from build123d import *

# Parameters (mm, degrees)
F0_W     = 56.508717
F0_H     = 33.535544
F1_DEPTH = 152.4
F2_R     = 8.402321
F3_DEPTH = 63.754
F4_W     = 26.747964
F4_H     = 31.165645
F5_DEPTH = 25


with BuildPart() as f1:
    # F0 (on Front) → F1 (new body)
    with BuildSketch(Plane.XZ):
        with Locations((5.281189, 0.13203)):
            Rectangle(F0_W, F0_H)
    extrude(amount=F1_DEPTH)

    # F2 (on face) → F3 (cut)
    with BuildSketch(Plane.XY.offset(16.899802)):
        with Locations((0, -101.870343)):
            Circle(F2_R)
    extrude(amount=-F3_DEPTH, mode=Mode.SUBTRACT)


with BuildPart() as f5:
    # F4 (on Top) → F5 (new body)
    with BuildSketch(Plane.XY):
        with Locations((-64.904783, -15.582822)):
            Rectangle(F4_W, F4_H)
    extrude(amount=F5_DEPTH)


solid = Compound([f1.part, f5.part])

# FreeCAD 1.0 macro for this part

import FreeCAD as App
import Part
import Sketcher

V = App.Vector
Q = App.Units.Quantity


def add_polygon(sketch, points):
    """Adds a closed chain of lines whose ends are joined by coincident constraints."""
    first, n = sketch.GeometryCount, len(points)
    for a, b in zip(points, points[1:] + points[:1]):
        sketch.addGeometry(Part.LineSegment(App.Vector(*a, 0), App.Vector(*b, 0)), False)
    for i in range(n):
        sketch.addConstraint(Sketcher.Constraint("Coincident", first + i, 2, first + (i + 1) % n, 1))

doc = App.newDocument("Part")
body = doc.addObject("PartDesign::Body", "Body")

# Sketch on XZ plane
sketch1 = body.newObject("Sketcher::SketchObject", "Sketch")
sketch1.AttachmentSupport = (doc.getObject("XZ_Plane"), [""])
sketch1.MapMode = "FlatFace"
add_polygon(sketch1, [(-22.97317, 16.899802), (-22.97317, -16.635742), (33.535547, -16.635742), (33.535547, 16.899802)])  # lines 0-3
sketch1.addConstraint(Sketcher.Constraint("Vertical", 0))
sketch1.addConstraint(Sketcher.Constraint("Horizontal", 1))
sketch1.addConstraint(Sketcher.Constraint("Vertical", 2))
sketch1.addConstraint(Sketcher.Constraint("Horizontal", 3))
sketch1.addConstraint(Sketcher.Constraint("DistanceX", 1, 1, 1, 2, 56.508717))
sketch1.addConstraint(Sketcher.Constraint("DistanceY", 0, 2, 0, 1, 33.535544))
sketch1.addConstraint(Sketcher.Constraint("DistanceX", 0, 2, -1, 1, 22.97317))
sketch1.addConstraint(Sketcher.Constraint("DistanceY", 0, 2, -1, 1, 16.635742))
pad1 = body.newObject("PartDesign::Pad", "Pad")
pad1.Profile = sketch1
pad1.Length = Q("6 in")

# Sketch on XY plane
sketch2 = body.newObject("Sketcher::SketchObject", "Sketch001")
sketch2.AttachmentSupport = (doc.getObject("XY_Plane"), [""])
sketch2.MapMode = "FlatFace"
sketch2.AttachmentOffset = App.Placement(V(0, 0, 16.899802), App.Rotation())
sketch2.addGeometry(Part.Circle(V(0, -101.870343, 0), V(0, 0, 1), 8.402321), False)
sketch2.addConstraint(Sketcher.Constraint("PointOnObject", 0, 3, -2))
sketch2.addConstraint(Sketcher.Constraint("Diameter", 0, Q("0.6616001 in")))
sketch2.addConstraint(Sketcher.Constraint("DistanceY", 0, 3, -1, 1, 101.870343))
pocket1 = body.newObject("PartDesign::Pocket", "Pocket")
pocket1.Profile = sketch2
pocket1.Length = Q("2.51 in")
body2 = doc.addObject("PartDesign::Body", "Body001")

# Sketch on XY plane
sketch3 = body2.newObject("Sketcher::SketchObject", "Sketch002")
sketch3.AttachmentSupport = (doc.getObject("XY_Plane001"), [""])
sketch3.MapMode = "FlatFace"
add_polygon(sketch3, [(-78.278765, 0), (-78.278765, -31.165644), (-51.530801, -31.165644), (-51.530801, 0)])  # lines 0-3
sketch3.addConstraint(Sketcher.Constraint("Vertical", 0))
sketch3.addConstraint(Sketcher.Constraint("Horizontal", 1))
sketch3.addConstraint(Sketcher.Constraint("Vertical", 2))
sketch3.addConstraint(Sketcher.Constraint("Horizontal", 3))
sketch3.addConstraint(Sketcher.Constraint("PointOnObject", 2, 2, -1))
sketch3.addConstraint(Sketcher.Constraint("DistanceX", 1, 2, -1, 1, 51.530801))
sketch3.addConstraint(Sketcher.Constraint("DistanceX", 1, 1, 1, 2, 26.747964))
sketch3.addConstraint(Sketcher.Constraint("DistanceY", 0, 2, 0, 1, 31.165645))
pad2 = body2.newObject("PartDesign::Pad", "Pad001")
pad2.Profile = sketch3
pad2.Length = 25

doc.recompute()
